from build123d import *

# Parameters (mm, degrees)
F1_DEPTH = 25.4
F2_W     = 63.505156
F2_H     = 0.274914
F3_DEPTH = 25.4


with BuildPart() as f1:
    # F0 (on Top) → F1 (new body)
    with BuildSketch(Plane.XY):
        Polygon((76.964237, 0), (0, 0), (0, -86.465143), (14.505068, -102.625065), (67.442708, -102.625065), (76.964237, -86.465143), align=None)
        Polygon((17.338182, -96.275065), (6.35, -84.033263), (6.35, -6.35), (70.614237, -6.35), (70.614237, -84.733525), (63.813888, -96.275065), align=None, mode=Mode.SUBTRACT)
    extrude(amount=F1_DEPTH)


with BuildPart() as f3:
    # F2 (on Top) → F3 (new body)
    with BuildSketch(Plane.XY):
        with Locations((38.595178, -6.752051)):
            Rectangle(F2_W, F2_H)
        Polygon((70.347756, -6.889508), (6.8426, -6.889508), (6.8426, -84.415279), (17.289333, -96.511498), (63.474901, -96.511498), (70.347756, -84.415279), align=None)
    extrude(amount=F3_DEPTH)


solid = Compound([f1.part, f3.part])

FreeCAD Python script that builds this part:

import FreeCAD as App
import Part
import Sketcher
from FreeCAD import Vector
Q = App.Units.Quantity


def add_polygon(sketch, points):
    """Adds a closed chain of lines whose ends are joined by coincident constraints."""
    first, n = sketch.GeometryCount, len(points)
    for a, b in zip(points, points[1:] + points[:1]):
        sketch.addGeometry(Part.LineSegment(App.Vector(*a, 0), App.Vector(*b, 0)), False)
    for i in range(n):
        sketch.addConstraint(Sketcher.Constraint("Coincident", first + i, 2, first + (i + 1) % n, 1))

doc = App.newDocument("Part")
body = doc.addObject("PartDesign::Body", "Body")

sketch1 = body.newObject("Sketcher::SketchObject", "Sketch")
sketch1.AttachmentSupport = (doc.getObject("XY_Plane"), [""])
sketch1.MapMode = "FlatFace"
add_polygon(sketch1, [(77, 0), (0, 0), (0, -86), (15, -103), (67, -103), (77, -86)])
add_polygon(sketch1, [(64, -96), (17, -96), (6, -84), (6, -6), (71, -6), (71, -85)])
sketch1.addConstraint([
    Sketcher.Constraint("Horizontal", 0),
    Sketcher.Constraint("Vertical", 1),
    Sketcher.Constraint("Horizontal", 3),
    Sketcher.Constraint("Vertical", 5),
    Sketcher.Constraint("Horizontal", 6),
    Sketcher.Constraint("Vertical", 8),
    Sketcher.Constraint("Horizontal", 9),
    Sketcher.Constraint("Vertical", 10),
    Sketcher.Constraint("Coincident", 0, 2, -1, 1),
    Sketcher.Constraint("Parallel", 2, 7),
    Sketcher.Constraint("Parallel", 4, 11),
    Sketcher.Constraint("Horizontal", 1, 2, 4, 2),
    Sketcher.Constraint("DistanceX", -1, 1, 7, 2, Q("0.25 in")),
    Sketcher.Constraint("DistanceY", 8, 2, -1, 1, Q("0.25 in")),
    Sketcher.Constraint("DistanceY", 2, 2, 6, 2, Q("0.25 in")),
    Sketcher.Constraint("DistanceX", 9, 2, 5, 2, Q("0.25 in")),
    Sketcher.Constraint("Distance", 4, Q("18.756401 mm")),
    Sketcher.Constraint("DistanceX", 3, 1, 3, 2, Q("52.93764 mm")),
    Sketcher.Constraint("DistanceY", 6, 2, 7, 2, Q("12.241802 mm")),
    Sketcher.Constraint("Distance", 7, Q("16.449981 mm")),
    Sketcher.Constraint("DistanceX", 0, 2, 0, 1, Q("76.964237 mm")),
    Sketcher.Constraint("DistanceX", 6, 2, 6, 1, Q("46.475706 mm")),
    Sketcher.Constraint("DistanceY", 1, 2, 1, 1, Q("86.465143 mm")),
])
pad1 = body.newObject("PartDesign::Pad", "Pad")
pad1.Profile = sketch1
pad1.Length = Q("1 in")
body2 = doc.addObject("PartDesign::Body", "Body001")

sketch2 = body2.newObject("Sketcher::SketchObject", "Sketch001")
sketch2.AttachmentSupport = (doc.getObject("XY_Plane001"), [""])
sketch2.MapMode = "FlatFace"
add_polygon(sketch2, [(7, -7), (7, -84), (17, -97), (63, -97), (70, -84), (70, -7)])
sketch2.addConstraint([
    Sketcher.Constraint("Vertical", 0),
    Sketcher.Constraint("Horizontal", 2),
    Sketcher.Constraint("Vertical", 4),
    Sketcher.Constraint("Horizontal", 5),
    Sketcher.Constraint("Horizontal", 0, 2, 3, 2),
    Sketcher.Constraint("DistanceX", 2, 1, 2, 2, Q("46.185568 mm")),
    Sketcher.Constraint("DistanceX", -1, 1, 0, 2, Q("6.8426 mm")),
    Sketcher.Constraint("DistanceY", 1, 2, -1, 1, Q("96.511498 mm")),
    Sketcher.Constraint("DistanceX", -1, 1, 2, 2, Q("63.474901 mm")),
    Sketcher.Constraint("Distance", 1, Q("15.982889 mm")),
    Sketcher.Constraint("Distance", 3, Q("13.912392 mm")),
    Sketcher.Constraint("DistanceY", 0, 2, 0, 1, Q("77.800685 mm")),
])
pad2 = body2.newObject("PartDesign::Pad", "Pad001")
pad2.Profile = sketch2
pad2.Length = Q("1 in")

doc.recompute()
